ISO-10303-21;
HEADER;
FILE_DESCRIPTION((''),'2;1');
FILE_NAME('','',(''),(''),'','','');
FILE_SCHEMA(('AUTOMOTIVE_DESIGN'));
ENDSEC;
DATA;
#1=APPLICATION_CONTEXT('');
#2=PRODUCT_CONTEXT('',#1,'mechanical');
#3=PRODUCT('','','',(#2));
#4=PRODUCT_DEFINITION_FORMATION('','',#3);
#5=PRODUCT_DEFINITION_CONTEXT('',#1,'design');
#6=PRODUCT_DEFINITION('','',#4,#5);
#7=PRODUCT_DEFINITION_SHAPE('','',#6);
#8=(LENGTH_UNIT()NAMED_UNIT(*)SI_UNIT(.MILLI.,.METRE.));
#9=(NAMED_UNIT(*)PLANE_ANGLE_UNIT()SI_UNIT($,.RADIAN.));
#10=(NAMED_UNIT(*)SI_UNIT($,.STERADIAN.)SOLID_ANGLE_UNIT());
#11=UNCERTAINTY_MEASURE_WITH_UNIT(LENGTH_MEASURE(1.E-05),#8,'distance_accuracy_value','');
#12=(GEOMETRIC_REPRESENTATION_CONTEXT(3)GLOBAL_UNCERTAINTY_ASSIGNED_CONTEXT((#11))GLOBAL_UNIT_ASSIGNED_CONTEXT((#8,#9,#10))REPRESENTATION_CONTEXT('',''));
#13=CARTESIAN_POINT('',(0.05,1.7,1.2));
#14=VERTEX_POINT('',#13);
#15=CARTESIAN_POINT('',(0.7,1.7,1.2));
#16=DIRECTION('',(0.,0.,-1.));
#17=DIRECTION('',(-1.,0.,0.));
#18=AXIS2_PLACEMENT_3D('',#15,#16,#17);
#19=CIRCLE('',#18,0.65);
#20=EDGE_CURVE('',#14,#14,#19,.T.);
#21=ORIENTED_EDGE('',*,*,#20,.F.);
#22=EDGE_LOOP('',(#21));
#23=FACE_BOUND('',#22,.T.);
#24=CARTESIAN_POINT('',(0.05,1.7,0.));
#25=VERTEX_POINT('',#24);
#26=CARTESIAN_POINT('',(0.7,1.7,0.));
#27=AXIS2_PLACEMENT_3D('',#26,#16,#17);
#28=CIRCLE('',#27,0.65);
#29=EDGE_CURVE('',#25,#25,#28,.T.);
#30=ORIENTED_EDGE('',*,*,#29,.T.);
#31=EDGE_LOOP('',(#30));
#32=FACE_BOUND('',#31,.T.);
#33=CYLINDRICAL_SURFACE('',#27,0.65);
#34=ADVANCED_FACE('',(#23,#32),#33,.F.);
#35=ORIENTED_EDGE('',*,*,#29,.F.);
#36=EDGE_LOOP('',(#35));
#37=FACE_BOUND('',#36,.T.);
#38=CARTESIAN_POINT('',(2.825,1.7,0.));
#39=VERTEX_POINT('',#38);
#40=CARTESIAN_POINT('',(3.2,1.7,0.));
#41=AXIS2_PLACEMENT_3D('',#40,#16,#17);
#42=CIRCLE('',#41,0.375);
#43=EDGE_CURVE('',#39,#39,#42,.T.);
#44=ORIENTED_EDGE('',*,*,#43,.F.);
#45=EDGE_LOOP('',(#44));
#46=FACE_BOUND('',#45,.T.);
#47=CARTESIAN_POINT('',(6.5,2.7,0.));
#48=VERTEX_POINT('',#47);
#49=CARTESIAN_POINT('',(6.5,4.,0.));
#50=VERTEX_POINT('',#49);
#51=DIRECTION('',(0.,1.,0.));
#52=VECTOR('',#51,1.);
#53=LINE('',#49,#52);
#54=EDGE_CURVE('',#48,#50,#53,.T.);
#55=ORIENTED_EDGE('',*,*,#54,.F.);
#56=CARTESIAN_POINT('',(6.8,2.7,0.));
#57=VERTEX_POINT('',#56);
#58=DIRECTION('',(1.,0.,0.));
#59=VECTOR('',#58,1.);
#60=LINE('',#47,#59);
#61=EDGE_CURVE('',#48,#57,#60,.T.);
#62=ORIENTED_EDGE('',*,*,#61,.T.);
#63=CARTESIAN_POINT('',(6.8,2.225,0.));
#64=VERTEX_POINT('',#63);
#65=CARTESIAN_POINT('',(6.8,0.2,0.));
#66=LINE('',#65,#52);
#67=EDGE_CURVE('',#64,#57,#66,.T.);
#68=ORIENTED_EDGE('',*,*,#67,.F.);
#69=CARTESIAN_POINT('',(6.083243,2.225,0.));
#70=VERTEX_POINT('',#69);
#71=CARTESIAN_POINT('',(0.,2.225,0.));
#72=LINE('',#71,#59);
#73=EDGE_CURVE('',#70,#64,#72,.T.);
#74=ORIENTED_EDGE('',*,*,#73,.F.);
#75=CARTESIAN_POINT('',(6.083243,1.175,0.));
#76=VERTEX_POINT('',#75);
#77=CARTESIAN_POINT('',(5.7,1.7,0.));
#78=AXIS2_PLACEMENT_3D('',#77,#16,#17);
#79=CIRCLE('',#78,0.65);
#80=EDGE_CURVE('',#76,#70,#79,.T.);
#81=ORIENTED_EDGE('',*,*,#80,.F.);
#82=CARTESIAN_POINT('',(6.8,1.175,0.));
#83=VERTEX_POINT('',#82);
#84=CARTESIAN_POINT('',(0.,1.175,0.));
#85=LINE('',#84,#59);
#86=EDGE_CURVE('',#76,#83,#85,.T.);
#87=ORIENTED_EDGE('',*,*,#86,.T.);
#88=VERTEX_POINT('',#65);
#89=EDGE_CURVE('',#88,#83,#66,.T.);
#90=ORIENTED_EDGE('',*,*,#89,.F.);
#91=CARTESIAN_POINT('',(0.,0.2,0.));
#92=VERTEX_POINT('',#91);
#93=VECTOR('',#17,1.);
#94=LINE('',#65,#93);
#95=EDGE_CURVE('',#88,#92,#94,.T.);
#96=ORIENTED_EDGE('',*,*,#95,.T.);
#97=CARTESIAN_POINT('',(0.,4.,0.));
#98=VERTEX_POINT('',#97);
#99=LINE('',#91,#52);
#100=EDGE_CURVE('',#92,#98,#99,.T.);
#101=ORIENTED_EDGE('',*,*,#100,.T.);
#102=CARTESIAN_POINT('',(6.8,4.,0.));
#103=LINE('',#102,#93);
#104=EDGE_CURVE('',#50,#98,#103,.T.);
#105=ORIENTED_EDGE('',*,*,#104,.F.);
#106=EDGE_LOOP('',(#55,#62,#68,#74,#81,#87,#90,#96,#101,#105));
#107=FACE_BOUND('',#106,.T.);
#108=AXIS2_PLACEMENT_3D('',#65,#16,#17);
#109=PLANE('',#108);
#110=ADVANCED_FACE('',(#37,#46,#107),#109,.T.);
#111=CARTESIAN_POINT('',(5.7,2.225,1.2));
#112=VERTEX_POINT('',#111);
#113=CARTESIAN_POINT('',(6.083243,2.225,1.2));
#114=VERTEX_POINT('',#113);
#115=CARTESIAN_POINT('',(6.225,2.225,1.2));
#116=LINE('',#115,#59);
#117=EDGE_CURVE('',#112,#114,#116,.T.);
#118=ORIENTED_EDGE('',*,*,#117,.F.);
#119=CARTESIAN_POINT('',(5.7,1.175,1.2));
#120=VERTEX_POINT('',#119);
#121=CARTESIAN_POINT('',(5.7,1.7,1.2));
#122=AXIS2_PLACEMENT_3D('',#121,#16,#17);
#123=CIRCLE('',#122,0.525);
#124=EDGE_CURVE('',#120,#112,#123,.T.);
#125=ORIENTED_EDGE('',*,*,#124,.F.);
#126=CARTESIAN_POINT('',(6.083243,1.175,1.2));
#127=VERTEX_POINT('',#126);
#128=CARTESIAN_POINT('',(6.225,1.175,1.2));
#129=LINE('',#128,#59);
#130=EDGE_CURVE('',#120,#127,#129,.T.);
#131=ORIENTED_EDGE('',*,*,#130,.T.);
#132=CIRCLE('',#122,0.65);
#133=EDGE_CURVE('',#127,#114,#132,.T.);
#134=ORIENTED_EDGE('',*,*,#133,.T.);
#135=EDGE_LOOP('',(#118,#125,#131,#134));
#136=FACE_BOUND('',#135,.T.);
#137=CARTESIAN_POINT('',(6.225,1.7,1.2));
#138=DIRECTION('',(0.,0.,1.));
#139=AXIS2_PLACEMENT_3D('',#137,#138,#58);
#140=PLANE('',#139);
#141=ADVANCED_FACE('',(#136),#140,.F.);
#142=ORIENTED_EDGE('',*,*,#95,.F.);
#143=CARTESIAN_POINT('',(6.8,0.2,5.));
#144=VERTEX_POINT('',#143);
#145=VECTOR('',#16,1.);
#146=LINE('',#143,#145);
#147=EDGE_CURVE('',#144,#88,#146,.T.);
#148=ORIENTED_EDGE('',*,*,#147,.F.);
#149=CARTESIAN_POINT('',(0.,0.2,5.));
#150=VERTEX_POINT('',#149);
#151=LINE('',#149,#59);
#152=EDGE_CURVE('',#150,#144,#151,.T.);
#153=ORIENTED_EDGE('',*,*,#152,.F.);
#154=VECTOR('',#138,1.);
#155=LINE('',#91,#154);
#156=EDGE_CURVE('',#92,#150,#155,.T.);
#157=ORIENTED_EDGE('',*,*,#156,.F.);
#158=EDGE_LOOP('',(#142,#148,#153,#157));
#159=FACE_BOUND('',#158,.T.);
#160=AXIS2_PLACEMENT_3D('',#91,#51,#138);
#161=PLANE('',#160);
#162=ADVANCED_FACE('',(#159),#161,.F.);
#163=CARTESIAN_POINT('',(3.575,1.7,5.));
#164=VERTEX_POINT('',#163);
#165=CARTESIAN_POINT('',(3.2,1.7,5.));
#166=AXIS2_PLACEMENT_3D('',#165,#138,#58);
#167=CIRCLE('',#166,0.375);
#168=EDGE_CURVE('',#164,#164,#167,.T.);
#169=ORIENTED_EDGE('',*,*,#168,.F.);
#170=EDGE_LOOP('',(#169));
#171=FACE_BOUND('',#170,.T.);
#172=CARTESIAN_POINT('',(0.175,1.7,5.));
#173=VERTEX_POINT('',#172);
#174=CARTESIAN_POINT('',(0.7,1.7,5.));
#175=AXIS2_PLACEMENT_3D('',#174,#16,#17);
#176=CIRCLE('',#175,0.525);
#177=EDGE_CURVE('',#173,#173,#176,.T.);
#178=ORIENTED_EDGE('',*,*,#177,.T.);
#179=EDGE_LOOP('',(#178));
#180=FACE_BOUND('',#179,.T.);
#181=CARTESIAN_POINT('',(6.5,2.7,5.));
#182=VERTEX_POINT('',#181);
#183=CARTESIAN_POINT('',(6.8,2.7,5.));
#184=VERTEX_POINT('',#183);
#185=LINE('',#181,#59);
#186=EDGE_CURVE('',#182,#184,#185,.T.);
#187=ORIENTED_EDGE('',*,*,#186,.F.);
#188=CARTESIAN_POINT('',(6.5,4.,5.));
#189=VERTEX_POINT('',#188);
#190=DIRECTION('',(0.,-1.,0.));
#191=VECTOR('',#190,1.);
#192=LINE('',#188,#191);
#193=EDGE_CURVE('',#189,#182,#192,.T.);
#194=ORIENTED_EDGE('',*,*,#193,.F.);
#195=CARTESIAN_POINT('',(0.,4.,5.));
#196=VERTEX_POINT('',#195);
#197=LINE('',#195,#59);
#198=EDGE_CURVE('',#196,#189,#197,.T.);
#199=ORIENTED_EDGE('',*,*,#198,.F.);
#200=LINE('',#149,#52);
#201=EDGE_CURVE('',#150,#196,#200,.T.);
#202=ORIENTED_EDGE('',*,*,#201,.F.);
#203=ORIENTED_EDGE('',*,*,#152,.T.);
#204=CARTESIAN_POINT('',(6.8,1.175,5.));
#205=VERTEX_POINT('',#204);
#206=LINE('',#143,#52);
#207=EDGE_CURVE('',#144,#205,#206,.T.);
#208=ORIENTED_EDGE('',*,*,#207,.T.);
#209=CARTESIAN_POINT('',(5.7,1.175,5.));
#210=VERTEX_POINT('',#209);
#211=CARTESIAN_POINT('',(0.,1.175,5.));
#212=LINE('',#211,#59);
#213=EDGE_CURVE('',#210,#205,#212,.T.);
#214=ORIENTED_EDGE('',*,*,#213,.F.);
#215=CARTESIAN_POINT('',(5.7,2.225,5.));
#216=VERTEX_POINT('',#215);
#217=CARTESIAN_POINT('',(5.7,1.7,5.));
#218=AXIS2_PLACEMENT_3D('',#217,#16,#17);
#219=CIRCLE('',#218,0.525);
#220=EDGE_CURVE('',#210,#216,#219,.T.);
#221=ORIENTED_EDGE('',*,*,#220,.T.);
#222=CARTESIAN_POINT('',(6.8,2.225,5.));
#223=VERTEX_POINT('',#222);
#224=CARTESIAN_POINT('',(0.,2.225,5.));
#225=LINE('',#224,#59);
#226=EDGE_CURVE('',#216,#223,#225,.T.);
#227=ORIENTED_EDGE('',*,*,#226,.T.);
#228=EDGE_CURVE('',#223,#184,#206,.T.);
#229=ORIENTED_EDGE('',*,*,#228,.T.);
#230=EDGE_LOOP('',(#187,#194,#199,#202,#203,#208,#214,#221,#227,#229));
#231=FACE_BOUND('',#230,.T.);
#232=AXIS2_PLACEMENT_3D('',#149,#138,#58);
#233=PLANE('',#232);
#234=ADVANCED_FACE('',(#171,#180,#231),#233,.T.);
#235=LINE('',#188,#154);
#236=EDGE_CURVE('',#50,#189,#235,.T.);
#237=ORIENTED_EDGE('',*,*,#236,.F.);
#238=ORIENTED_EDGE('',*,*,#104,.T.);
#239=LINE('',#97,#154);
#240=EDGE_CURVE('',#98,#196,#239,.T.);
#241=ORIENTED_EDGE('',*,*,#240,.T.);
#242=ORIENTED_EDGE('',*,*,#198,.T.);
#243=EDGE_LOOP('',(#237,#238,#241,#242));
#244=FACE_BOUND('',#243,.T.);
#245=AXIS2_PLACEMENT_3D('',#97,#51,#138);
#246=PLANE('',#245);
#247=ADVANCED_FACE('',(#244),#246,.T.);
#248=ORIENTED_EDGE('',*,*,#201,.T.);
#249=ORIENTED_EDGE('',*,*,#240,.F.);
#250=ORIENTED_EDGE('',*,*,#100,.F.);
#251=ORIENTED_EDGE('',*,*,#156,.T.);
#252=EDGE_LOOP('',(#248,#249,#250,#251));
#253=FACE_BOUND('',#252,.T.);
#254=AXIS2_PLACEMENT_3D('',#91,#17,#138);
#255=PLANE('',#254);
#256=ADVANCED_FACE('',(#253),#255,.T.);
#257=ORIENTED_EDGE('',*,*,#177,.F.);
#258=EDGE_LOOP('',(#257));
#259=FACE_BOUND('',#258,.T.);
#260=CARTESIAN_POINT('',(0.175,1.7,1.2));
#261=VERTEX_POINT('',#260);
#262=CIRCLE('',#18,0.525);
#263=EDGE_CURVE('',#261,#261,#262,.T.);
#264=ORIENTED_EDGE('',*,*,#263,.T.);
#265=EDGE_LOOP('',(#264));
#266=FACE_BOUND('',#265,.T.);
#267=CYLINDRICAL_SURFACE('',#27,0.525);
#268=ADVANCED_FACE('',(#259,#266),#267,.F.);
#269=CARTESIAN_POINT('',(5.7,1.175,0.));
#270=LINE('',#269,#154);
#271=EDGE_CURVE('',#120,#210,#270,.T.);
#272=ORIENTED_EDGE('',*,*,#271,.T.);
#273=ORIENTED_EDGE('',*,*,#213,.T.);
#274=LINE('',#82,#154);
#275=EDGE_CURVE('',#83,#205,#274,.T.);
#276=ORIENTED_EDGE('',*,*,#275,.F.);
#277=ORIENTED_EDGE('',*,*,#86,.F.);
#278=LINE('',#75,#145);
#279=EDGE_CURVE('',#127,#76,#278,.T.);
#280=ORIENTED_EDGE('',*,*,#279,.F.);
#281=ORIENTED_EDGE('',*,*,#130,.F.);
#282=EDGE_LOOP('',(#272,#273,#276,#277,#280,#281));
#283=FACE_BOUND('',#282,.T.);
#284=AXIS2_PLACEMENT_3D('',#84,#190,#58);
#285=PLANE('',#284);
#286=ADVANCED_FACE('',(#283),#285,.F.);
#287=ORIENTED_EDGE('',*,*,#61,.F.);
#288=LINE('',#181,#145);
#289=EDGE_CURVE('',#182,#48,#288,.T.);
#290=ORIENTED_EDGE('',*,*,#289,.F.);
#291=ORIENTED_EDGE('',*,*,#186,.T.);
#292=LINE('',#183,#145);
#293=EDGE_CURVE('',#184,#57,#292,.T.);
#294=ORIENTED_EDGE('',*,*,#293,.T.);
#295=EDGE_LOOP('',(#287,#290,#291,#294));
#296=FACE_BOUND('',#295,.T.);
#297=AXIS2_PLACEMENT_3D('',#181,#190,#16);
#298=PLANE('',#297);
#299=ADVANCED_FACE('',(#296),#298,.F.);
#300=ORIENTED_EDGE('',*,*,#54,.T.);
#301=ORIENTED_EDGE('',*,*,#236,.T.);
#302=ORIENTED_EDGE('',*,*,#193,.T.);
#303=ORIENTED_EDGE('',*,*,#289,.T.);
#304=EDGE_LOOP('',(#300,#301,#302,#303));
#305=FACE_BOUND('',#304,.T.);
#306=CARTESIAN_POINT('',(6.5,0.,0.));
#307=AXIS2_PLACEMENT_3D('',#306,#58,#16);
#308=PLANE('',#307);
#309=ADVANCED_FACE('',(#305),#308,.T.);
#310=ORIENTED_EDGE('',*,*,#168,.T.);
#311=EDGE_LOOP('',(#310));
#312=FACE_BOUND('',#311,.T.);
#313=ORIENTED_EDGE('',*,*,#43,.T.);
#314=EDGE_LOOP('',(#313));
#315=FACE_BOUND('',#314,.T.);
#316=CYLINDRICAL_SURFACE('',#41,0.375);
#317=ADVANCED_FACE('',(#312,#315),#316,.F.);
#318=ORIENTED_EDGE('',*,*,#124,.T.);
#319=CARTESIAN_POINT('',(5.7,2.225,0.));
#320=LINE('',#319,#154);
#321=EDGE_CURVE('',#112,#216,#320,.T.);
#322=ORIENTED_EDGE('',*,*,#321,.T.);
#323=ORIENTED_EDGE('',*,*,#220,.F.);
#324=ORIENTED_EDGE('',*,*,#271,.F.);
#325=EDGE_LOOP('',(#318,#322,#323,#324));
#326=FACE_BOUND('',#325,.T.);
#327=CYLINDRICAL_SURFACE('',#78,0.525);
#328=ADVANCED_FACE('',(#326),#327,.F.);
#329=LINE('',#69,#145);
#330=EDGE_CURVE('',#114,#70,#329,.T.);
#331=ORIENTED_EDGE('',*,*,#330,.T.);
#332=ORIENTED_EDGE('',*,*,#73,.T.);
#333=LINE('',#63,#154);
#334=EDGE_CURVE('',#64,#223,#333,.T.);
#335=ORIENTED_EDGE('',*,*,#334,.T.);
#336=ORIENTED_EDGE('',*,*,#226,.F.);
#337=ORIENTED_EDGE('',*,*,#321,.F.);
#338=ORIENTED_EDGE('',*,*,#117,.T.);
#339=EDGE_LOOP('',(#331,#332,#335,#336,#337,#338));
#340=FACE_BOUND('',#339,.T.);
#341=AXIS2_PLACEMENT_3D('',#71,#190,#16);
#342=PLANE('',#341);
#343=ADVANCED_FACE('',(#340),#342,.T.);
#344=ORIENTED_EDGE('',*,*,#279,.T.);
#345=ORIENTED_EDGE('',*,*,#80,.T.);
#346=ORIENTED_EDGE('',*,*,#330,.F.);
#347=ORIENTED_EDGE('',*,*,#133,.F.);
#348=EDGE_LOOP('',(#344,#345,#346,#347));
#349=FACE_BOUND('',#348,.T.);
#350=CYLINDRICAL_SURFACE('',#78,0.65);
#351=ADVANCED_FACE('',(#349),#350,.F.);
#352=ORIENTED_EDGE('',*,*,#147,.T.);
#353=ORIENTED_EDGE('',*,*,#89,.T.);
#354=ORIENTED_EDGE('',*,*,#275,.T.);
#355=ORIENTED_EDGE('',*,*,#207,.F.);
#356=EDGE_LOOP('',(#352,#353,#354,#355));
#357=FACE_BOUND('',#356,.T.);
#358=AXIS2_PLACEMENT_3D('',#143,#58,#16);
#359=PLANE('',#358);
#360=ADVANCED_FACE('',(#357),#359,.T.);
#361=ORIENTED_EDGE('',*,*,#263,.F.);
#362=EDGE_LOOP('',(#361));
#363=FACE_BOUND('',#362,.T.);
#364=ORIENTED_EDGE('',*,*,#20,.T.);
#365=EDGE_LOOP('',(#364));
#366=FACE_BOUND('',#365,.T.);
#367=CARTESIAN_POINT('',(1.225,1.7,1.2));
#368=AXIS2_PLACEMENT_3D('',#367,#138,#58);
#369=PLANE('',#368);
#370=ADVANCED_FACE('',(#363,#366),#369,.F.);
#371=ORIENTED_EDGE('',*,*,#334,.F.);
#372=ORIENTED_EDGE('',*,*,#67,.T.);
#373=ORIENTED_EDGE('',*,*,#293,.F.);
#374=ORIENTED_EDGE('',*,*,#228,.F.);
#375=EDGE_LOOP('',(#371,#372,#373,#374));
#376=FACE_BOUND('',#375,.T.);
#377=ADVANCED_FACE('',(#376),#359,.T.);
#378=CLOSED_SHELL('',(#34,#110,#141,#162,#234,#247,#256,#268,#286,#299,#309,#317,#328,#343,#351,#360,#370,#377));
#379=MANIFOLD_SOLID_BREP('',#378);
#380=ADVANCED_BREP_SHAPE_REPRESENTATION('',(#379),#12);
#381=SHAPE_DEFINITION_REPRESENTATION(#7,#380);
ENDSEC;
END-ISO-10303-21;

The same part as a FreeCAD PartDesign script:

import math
import FreeCAD as App
import Part
import Sketcher
from FreeCAD import Vector
Q = App.Units.Quantity

doc = App.newDocument("Part")
body = doc.addObject("PartDesign::Body", "Body")

# Sketch on XZ plane
sketch1 = doc.addObject("Sketcher::SketchObject", "Sketch")
body.addObject(sketch1)
sketch1.AttachmentSupport = (doc.XZ_Plane, [""])
sketch1.MapMode = "FlatFace"
sketch1.AttachmentOffset = App.Placement(Vector(0, 0, -4), App.Rotation())
sketch1.addGeometry(Part.LineSegment(Vector(7, 5, 0), Vector(7, 0, 0)), False)
sketch1.addGeometry(Part.LineSegment(Vector(7, 0, 0), Vector(0, 0, 0)), False)
sketch1.addGeometry(Part.LineSegment(Vector(0, 0, 0), Vector(0, 5, 0)), False)
sketch1.addGeometry(Part.LineSegment(Vector(0, 5, 0), Vector(7, 5, 0)), False)
sketch1.addConstraint(Sketcher.Constraint("Coincident", 0, 2, 1, 1))
sketch1.addConstraint(Sketcher.Constraint("Coincident", 1, 2, 2, 1))
sketch1.addConstraint(Sketcher.Constraint("Coincident", 2, 2, 3, 1))
sketch1.addConstraint(Sketcher.Constraint("Coincident", 3, 2, 0, 1))
sketch1.addConstraint(Sketcher.Constraint("Vertical", 0))
sketch1.addConstraint(Sketcher.Constraint("Horizontal", 1))
sketch1.addConstraint(Sketcher.Constraint("Vertical", 2))
sketch1.addConstraint(Sketcher.Constraint("Horizontal", 3))
sketch1.addConstraint(Sketcher.Constraint("Coincident", 1, 2, -1, 1))
sketch1.addConstraint(Sketcher.Constraint("DistanceY", 0, 2, 0, 1, Q("5 mm")))
sketch1.addConstraint(Sketcher.Constraint("DistanceX", 1, 2, 1, 1, Q("6.8 mm")))
pad1 = doc.addObject("PartDesign::Pad", "Pad")
body.addObject(pad1)
pad1.Profile = sketch1
pad1.Length = 3.8

# Sketch on XY plane
sketch2 = doc.addObject("Sketcher::SketchObject", "Sketch001")
body.addObject(sketch2)
sketch2.AttachmentSupport = (doc.XY_Plane, [""])
sketch2.MapMode = "FlatFace"
sketch2.addGeometry(Part.Circle(Vector(5.7, 1.7, 0), Vector(0, 0, 1), 0.5), False)
sketch2.addGeometry(Part.Circle(Vector(0.7, 1.7, 0), Vector(0, 0, 1), 0.5), False)
sketch2.addConstraint(Sketcher.Constraint("Equal", 0, 1))
sketch2.addConstraint(Sketcher.Constraint("Horizontal", 0, 3, 1, 3))
sketch2.addConstraint(Sketcher.Constraint("Diameter", 0, Q("1.05 mm")))
sketch2.addConstraint(Sketcher.Constraint("DistanceX", 1, 3, 0, 3, Q("5 mm")))
sketch2.addConstraint(Sketcher.Constraint("DistanceX", -1, 1, 0, 3, Q("5.7 mm")))
sketch2.addConstraint(Sketcher.Constraint("DistanceY", -1, 1, 0, 3, Q("1.7 mm")))
doc.recompute()
hole = doc.addObject("PartDesign::Hole", "Hole")
body.addObject(hole)
hole.Profile = sketch2
hole.ThreadType = "None"
hole.Diameter = 1.05
hole.DepthType = "ThroughAll"
hole.HoleCutType = "Counterbore"
hole.HoleCutDiameter = 1.3
hole.HoleCutDepth = 1.2
hole.Reversed = True

# Sketch on XY plane
sketch3 = doc.addObject("Sketcher::SketchObject", "Sketch002")
body.addObject(sketch3)
sketch3.AttachmentSupport = (doc.XY_Plane, [""])
sketch3.MapMode = "FlatFace"
sketch3.AttachmentOffset = App.Placement(Vector(0, 0, 5), App.Rotation())
sketch3.addGeometry(Part.LineSegment(Vector(5.7, 1.2, 0), Vector(6.8, 1.2, 0)), False)
sketch3.addGeometry(Part.LineSegment(Vector(6.8, 1.2, 0), Vector(6.8, 2.2, 0)), False)
sketch3.addGeometry(Part.LineSegment(Vector(6.8, 2.2, 0), Vector(5.7, 2.2, 0)), False)
sketch3.addGeometry(Part.ArcOfCircle(Part.Circle(Vector(5.7, 1.7, 0), Vector(0, 0, 1), 0.5), math.radians(90), math.radians(270)), False)
sketch3.addConstraint(Sketcher.Constraint("Coincident", 0, 2, 1, 1))
sketch3.addConstraint(Sketcher.Constraint("Coincident", 1, 2, 2, 1))
sketch3.addConstraint(Sketcher.Constraint("Tangent", 2, 2, 3, 1))
sketch3.addConstraint(Sketcher.Constraint("Tangent", 3, 2, 0, 1))
sketch3.addConstraint(Sketcher.Constraint("Horizontal", 0))
sketch3.addConstraint(Sketcher.Constraint("Vertical", 1))
sketch3.addConstraint(Sketcher.Constraint("Horizontal", 2))
sketch3.addConstraint(Sketcher.Constraint("DistanceX", 0, 1, 0, 2, Q("1.1 mm")))
sketch3.addConstraint(Sketcher.Constraint("Radius", 3, Q("0.525 mm")))
sketch3.addConstraint(Sketcher.Constraint("DistanceX", -1, 1, 3, 3, Q("5.7 mm")))
sketch3.addConstraint(Sketcher.Constraint("DistanceY", -1, 1, 3, 3, Q("1.7 mm")))
pocket1 = doc.addObject("PartDesign::Pocket", "Pocket")
body.addObject(pocket1)
pocket1.Profile = sketch3
pocket1.Type = "ThroughAll"

# Sketch on YZ plane
sketch4 = doc.addObject("Sketcher::SketchObject", "Sketch003")
body.addObject(sketch4)
sketch4.AttachmentSupport = (doc.YZ_Plane, [""])
sketch4.MapMode = "FlatFace"
sketch4.AttachmentOffset = App.Placement(Vector(0, 0, 6.8), App.Rotation())
sketch4.addGeometry(Part.LineSegment(Vector(4, 5, 0), Vector(2.7, 5, 0)), False)
sketch4.addGeometry(Part.LineSegment(Vector(2.7, 5, 0), Vector(2.7, 0, 0)), False)
sketch4.addGeometry(Part.LineSegment(Vector(2.7, 0, 0), Vector(4, 0, 0)), False)
sketch4.addGeometry(Part.LineSegment(Vector(4, 0, 0), Vector(4, 5, 0)), False)
sketch4.addConstraint(Sketcher.Constraint("Coincident", 0, 2, 1, 1))
sketch4.addConstraint(Sketcher.Constraint("Coincident", 1, 2, 2, 1))
sketch4.addConstraint(Sketcher.Constraint("Coincident", 2, 2, 3, 1))
sketch4.addConstraint(Sketcher.Constraint("Coincident", 3, 2, 0, 1))
sketch4.addConstraint(Sketcher.Constraint("Horizontal", 0))
sketch4.addConstraint(Sketcher.Constraint("Vertical", 1))
sketch4.addConstraint(Sketcher.Constraint("Horizontal", 2))
sketch4.addConstraint(Sketcher.Constraint("Vertical", 3))
sketch4.addConstraint(Sketcher.Constraint("PointOnObject", 1, 2, -1))
sketch4.addConstraint(Sketcher.Constraint("DistanceY", 1, 2, 1, 1, Q("5 mm")))
sketch4.addConstraint(Sketcher.Constraint("DistanceX", 0, 2, 0, 1, Q("1.3 mm")))
sketch4.addConstraint(Sketcher.Constraint("DistanceX", -1, 1, 2, 2, Q("4 mm")))
pocket2 = doc.addObject("PartDesign::Pocket", "Pocket001")
body.addObject(pocket2)
pocket2.Profile = sketch4
pocket2.Length = 0.3

# Sketch on XY plane
sketch5 = doc.addObject("Sketcher::SketchObject", "Sketch004")
body.addObject(sketch5)
sketch5.AttachmentSupport = (doc.XY_Plane, [""])
sketch5.MapMode = "FlatFace"
sketch5.addGeometry(Part.Circle(Vector(3.2, 1.7, 0), Vector(0, 0, 1), 0.38), False)
sketch5.addConstraint(Sketcher.Constraint("Diameter", 0, Q("0.75 mm")))
sketch5.addConstraint(Sketcher.Constraint("DistanceX", -1, 1, 0, 3, Q("3.2 mm")))
sketch5.addConstraint(Sketcher.Constraint("DistanceY", -1, 1, 0, 3, Q("1.7 mm")))
doc.recompute()
hole2 = doc.addObject("PartDesign::Hole", "Hole001")
body.addObject(hole2)
hole2.Profile = sketch5
hole2.ThreadType = "None"
hole2.Diameter = 0.75
hole2.DepthType = "ThroughAll"
hole2.Reversed = True

doc.recompute()
